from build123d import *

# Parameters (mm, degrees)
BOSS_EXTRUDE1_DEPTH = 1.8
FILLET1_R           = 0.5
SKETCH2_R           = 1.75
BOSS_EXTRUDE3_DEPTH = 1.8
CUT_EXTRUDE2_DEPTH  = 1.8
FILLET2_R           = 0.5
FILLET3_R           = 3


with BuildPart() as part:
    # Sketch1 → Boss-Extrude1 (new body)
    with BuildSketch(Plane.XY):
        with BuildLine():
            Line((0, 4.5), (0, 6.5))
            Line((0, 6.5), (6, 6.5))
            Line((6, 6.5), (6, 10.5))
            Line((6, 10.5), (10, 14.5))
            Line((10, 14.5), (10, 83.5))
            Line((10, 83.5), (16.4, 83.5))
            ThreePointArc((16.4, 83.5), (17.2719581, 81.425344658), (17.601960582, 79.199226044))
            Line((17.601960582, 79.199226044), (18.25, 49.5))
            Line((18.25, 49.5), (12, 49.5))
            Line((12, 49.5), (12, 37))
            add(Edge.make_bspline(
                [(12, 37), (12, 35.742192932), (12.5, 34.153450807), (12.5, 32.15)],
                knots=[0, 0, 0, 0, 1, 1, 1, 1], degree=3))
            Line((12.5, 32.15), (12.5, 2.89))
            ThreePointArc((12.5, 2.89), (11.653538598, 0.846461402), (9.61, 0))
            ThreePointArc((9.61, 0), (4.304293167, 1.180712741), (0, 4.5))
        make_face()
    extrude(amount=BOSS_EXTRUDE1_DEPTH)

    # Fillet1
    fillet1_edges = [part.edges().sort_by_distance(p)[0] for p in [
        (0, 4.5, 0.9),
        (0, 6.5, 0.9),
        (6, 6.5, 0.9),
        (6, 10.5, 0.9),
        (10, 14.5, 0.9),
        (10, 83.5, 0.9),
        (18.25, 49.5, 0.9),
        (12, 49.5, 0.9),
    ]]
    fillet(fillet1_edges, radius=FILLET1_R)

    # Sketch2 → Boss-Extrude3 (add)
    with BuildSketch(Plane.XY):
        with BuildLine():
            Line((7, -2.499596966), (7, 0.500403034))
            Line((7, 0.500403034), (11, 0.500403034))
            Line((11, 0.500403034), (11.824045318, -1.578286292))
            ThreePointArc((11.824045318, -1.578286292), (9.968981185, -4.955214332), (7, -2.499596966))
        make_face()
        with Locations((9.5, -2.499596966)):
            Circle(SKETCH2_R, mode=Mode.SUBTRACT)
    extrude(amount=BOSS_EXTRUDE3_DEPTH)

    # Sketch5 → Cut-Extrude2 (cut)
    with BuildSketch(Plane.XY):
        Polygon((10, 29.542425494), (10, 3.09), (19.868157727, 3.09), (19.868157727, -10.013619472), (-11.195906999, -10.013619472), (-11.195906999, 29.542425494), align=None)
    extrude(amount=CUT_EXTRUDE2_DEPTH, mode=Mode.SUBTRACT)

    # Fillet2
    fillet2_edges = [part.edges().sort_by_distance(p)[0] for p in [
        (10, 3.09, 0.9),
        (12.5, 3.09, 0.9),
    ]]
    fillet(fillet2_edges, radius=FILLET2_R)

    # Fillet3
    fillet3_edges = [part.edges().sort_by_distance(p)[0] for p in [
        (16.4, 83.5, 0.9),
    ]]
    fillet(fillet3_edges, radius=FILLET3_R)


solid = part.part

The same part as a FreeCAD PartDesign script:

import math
import FreeCAD as App
import Part
import Sketcher
from FreeCAD import Vector
Q = App.Units.Quantity


def edges_at(feature, points):
    """Names of the edges that pass closest to the given points."""
    edges = feature.Shape.Edges
    near = lambda p: min(range(len(edges)), key=lambda i: edges[i].distToShape(Part.Vertex(*p))[0])
    return sorted({f"Edge{near(p) + 1}" for p in points})

doc = App.newDocument("Part")
body = doc.addObject("PartDesign::Body", "Body")

# Sketch on XY plane
sketch1 = body.newObject("Sketcher::SketchObject", "Sketch")
sketch1.AttachmentSupport = (doc.getObject("XY_Plane"), [""])
sketch1.MapMode = "FlatFace"
sketch1.addGeometry([
    Part.LineSegment(Vector(0, 6.5, 0), Vector(0, 4.5, 0)),  # 0
    Part.ArcOfCircle(Part.Circle(Vector(9.61, 12.511344, 0), Vector(0, 0, 1), 12.511344), math.radians(-140.183836), math.radians(-90)),  # 1
    Part.ArcOfCircle(Part.Circle(Vector(9.61, 2.89, 0), Vector(0, 0, 1), 2.89), math.radians(-90), math.radians(0)),  # 2
    Part.LineSegment(Vector(12.5, 2.89, 0), Vector(12.5, 32.15, 0)),  # 3
    Part.BSplineCurve([Vector(12, 37, 0), Vector(12, 35.742193, 0), Vector(12.5, 34.153451, 0), Vector(12.5, 32.15, 0)], [4, 4], [0, 1], False, 3, [1, 1, 1, 1], False),  # 4
    Part.LineSegment(Vector(12, 37, 0), Vector(12, 49.5, 0)),  # 5
    Part.LineSegment(Vector(12, 49.5, 0), Vector(18.25, 49.5, 0)),  # 6
    Part.LineSegment(Vector(18.25, 49.5, 0), Vector(17.601961, 79.199226, 0)),  # 7
    Part.ArcOfCircle(Part.Circle(Vector(8.604102, 79.002892, 0), Vector(0, 0, 1), 9), math.radians(1.25), math.radians(29.978742)),  # 8
    Part.LineSegment(Vector(16.4, 83.5, 0), Vector(10, 83.5, 0)),  # 9
    Part.LineSegment(Vector(10, 83.5, 0), Vector(10, 14.5, 0)),  # 10
    Part.LineSegment(Vector(10, 14.5, 0), Vector(6, 10.5, 0)),  # 11
    Part.LineSegment(Vector(6, 10.5, 0), Vector(6, 6.5, 0)),  # 12
    Part.LineSegment(Vector(6, 6.5, 0), Vector(0, 6.5, 0)),  # 13
], False)
sketch1.addConstraint([
    Sketcher.Constraint("Block", 4),
    Sketcher.Constraint("Coincident", 0, 2, 1, 1),
    Sketcher.Constraint("Tangent", 1, 2, 2, 1),
    Sketcher.Constraint("Tangent", 2, 2, 3, 1),
    Sketcher.Constraint("Coincident", 3, 2, 4, 2),
    Sketcher.Constraint("Coincident", 4, 1, 5, 1),
    Sketcher.Constraint("Coincident", 5, 2, 6, 1),
    Sketcher.Constraint("Coincident", 6, 2, 7, 1),
    Sketcher.Constraint("Tangent", 7, 2, 8, 1),
    Sketcher.Constraint("Coincident", 8, 2, 9, 1),
    Sketcher.Constraint("Coincident", 9, 2, 10, 1),
    Sketcher.Constraint("Coincident", 10, 2, 11, 1),
    Sketcher.Constraint("Coincident", 11, 2, 12, 1),
    Sketcher.Constraint("Coincident", 12, 2, 13, 1),
    Sketcher.Constraint("Coincident", 13, 2, 0, 1),
    Sketcher.Constraint("Vertical", 0),
    Sketcher.Constraint("Vertical", 3),
    Sketcher.Constraint("Vertical", 5),
    Sketcher.Constraint("Horizontal", 6),
    Sketcher.Constraint("Horizontal", 9),
    Sketcher.Constraint("Vertical", 10),
    Sketcher.Constraint("Vertical", 12),
    Sketcher.Constraint("Horizontal", 13),
    Sketcher.Constraint("PointOnObject", 0, 2, -2),
    Sketcher.Constraint("PointOnObject", 1, 2, -1),
    Sketcher.Constraint("Vertical", 1, 3, 2, 3),
    Sketcher.Constraint("Radius", 8, Q("9 mm")),
    Sketcher.Constraint("DistanceX", 13, 2, 13, 1, Q("6 mm")),
    Sketcher.Constraint("DistanceY", 0, 2, 0, 1, Q("2 mm")),
    Sketcher.Constraint("DistanceY", 10, 2, 10, 1, Q("69 mm")),
    Sketcher.Constraint("DistanceY", 12, 2, 12, 1, Q("4 mm")),
    Sketcher.Constraint("Angle", 11, Q("-135 deg")),
    Sketcher.Constraint("Radius", 2, Q("2.89 mm")),
    Sketcher.Constraint("DistanceX", 9, 2, 9, 1, Q("6.4 mm")),
    Sketcher.Constraint("DistanceY", 5, 1, 5, 2, Q("12.5 mm")),
    Sketcher.Constraint("DistanceX", -1, 1, 9, 2, Q("10 mm")),
    Sketcher.Constraint("DistanceY", 0, 2, 5, 2, Q("45 mm")),
    Sketcher.Constraint("DistanceX", 6, 1, 6, 2, Q("6.25 mm")),
    Sketcher.Constraint("Angle", 7, Q("91.25 deg")),
])
pad1 = body.newObject("PartDesign::Pad", "Pad")
pad1.Profile = sketch1
pad1.Length = 1.8
doc.recompute()

fillet = body.newObject("PartDesign::Fillet", "Fillet")
fillet.Base = (pad1, edges_at(pad1, [
    (0, 4.5, 0.9),
    (0, 6.5, 0.9),
    (6, 6.5, 0.9),
    (6, 10.5, 0.9),
    (10, 14.5, 0.9),
    (10, 83.5, 0.9),
    (18.25, 49.5, 0.9),
    (12, 49.5, 0.9),
]))
fillet.Radius = 0.5

# Sketch on XY plane
sketch2 = body.newObject("Sketcher::SketchObject", "Sketch001")
sketch2.AttachmentSupport = (doc.getObject("XY_Plane"), [""])
sketch2.MapMode = "FlatFace"
sketch2.addGeometry([
    Part.LineSegment(Vector(7, 0.5, 0), Vector(7, -2.5, 0)),  # 0
    Part.ArcOfCircle(Part.Circle(Vector(9.5, -2.5, 0), Vector(0, 0, 1), 2.5), math.radians(180), math.radians(382)),  # 1
    Part.LineSegment(Vector(11.8, -1.6, 0), Vector(11, 0.5, 0)),  # 2
    Part.LineSegment(Vector(11, 0.5, 0), Vector(7, 0.5, 0)),  # 3
    Part.Circle(Vector(9.5, -2.5, 0), Vector(0, 0, 1), 1.8),  # 4
], False)
sketch2.addConstraint([
    Sketcher.Constraint("Tangent", 0, 2, 1, 1),
    Sketcher.Constraint("Tangent", 1, 2, 2, 1),
    Sketcher.Constraint("Coincident", 2, 2, 3, 1),
    Sketcher.Constraint("Coincident", 3, 2, 0, 1),
    Sketcher.Constraint("Vertical", 0),
    Sketcher.Constraint("Horizontal", 3),
    Sketcher.Constraint("Coincident", 4, 3, 1, 3),
    Sketcher.Constraint("Diameter", 4, Q("3.5 mm")),
    Sketcher.Constraint("Radius", 1, Q("2.5 mm")),
    Sketcher.Constraint("DistanceX", 3, 2, 3, 1, Q("4 mm")),
    Sketcher.Constraint("DistanceY", 0, 2, 0, 1, Q("3 mm")),
    Sketcher.Constraint("DistanceX", -1, 1, 0, 2, Q("7 mm")),
    Sketcher.Constraint("DistanceY", 1, 3, -1, 1, Q("2.499597 mm")),
])
pad2 = body.newObject("PartDesign::Pad", "Pad001")
pad2.Profile = sketch2
pad2.Length = 1.8

# Sketch on XY plane
sketch3 = body.newObject("Sketcher::SketchObject", "Sketch002")
sketch3.AttachmentSupport = (doc.getObject("XY_Plane"), [""])
sketch3.MapMode = "FlatFace"
sketch3.addGeometry([
    Part.LineSegment(Vector(10, 3, 0), Vector(10, 30, 0)),  # 0
    Part.LineSegment(Vector(10, 30, 0), Vector(-11, 30, 0)),  # 1
    Part.LineSegment(Vector(-11, 30, 0), Vector(-11, -10, 0)),  # 2
    Part.LineSegment(Vector(-11, -10, 0), Vector(20, -10, 0)),  # 3
    Part.LineSegment(Vector(20, -10, 0), Vector(20, 3, 0)),  # 4
    Part.LineSegment(Vector(20, 3, 0), Vector(10, 3, 0)),  # 5
], False)
sketch3.addConstraint([
    Sketcher.Constraint("Coincident", 0, 2, 1, 1),
    Sketcher.Constraint("Coincident", 1, 2, 2, 1),
    Sketcher.Constraint("Coincident", 2, 2, 3, 1),
    Sketcher.Constraint("Coincident", 3, 2, 4, 1),
    Sketcher.Constraint("Coincident", 4, 2, 5, 1),
    Sketcher.Constraint("Coincident", 5, 2, 0, 1),
    Sketcher.Constraint("Vertical", 0),
    Sketcher.Constraint("Horizontal", 1),
    Sketcher.Constraint("Vertical", 2),
    Sketcher.Constraint("Horizontal", 3),
    Sketcher.Constraint("Vertical", 4),
    Sketcher.Constraint("Horizontal", 5),
    Sketcher.Constraint("DistanceX", -1, 1, 0, 2, Q("10 mm")),
    Sketcher.Constraint("DistanceY", -1, 1, 4, 2, Q("3.09 mm")),
    Sketcher.Constraint("DistanceY", 4, 1, 4, 2, Q("13.103619 mm")),
    Sketcher.Constraint("DistanceX", 1, 2, 1, 1, Q("21.195907 mm")),
    Sketcher.Constraint("DistanceX", 3, 1, 3, 2, Q("31.064065 mm")),
    Sketcher.Constraint("DistanceY", 0, 1, 0, 2, Q("26.452425 mm")),
])
pocket1 = body.newObject("PartDesign::Pocket", "Pocket")
pocket1.Profile = sketch3
pocket1.Length = 1.8
pocket1.Reversed = True
doc.recompute()

fillet2 = body.newObject("PartDesign::Fillet", "Fillet001")
fillet2.Base = (pocket1, edges_at(pocket1, [(10, 3.09, 0.9), (12.5, 3.09, 0.9)]))
fillet2.Radius = 0.5
doc.recompute()

fillet3 = body.newObject("PartDesign::Fillet", "Fillet002")
fillet3.Base = (fillet2, edges_at(fillet2, [(16.4, 83.5, 0.9)]))
fillet3.Radius = 3

doc.recompute()
